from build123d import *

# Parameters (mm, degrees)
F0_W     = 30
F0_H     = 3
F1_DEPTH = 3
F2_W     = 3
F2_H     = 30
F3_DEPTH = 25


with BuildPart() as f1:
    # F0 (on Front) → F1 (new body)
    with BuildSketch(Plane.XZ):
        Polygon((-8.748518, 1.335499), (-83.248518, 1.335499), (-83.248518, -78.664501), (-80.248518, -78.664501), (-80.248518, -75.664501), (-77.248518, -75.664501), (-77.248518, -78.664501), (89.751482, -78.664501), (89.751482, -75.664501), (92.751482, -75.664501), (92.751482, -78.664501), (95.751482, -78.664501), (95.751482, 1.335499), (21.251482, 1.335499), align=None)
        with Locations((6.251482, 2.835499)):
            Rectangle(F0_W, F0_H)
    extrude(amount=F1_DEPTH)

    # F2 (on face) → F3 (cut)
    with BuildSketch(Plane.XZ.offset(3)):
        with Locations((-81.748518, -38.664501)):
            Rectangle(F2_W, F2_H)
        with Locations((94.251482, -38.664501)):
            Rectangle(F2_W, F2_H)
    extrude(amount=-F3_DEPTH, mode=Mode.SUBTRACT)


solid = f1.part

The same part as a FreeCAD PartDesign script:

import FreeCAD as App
import Part
import Sketcher
from FreeCAD import Vector

doc = App.newDocument("Part")
body = doc.addObject("PartDesign::Body", "Body")

# Sketch on XZ plane
sketch1 = body.newObject("Sketcher::SketchObject", "Sketch")
sketch1.AttachmentSupport = (doc.getObject("XZ_Plane"), [""])
sketch1.MapMode = "FlatFace"
sketch1.addGeometry([
    Part.LineSegment(Vector(-83.248518, 1.335499, 0), Vector(-83.248518, -78.664501, 0)),  # 0
    Part.LineSegment(Vector(-83.248518, -78.664501, 0), Vector(-80.248518, -78.664501, 0)),  # 1
    Part.LineSegment(Vector(-80.248518, -78.664501, 0), Vector(-80.248518, -75.664501, 0)),  # 2
    Part.LineSegment(Vector(-80.248518, -75.664501, 0), Vector(-77.248518, -75.664501, 0)),  # 3
    Part.LineSegment(Vector(-77.248518, -75.664501, 0), Vector(-77.248518, -78.664501, 0)),  # 4
    Part.LineSegment(Vector(-77.248518, -78.664501, 0), Vector(89.751482, -78.664501, 0)),  # 5
    Part.LineSegment(Vector(89.751482, -78.664501, 0), Vector(89.751482, -75.664501, 0)),  # 6
    Part.LineSegment(Vector(89.751482, -75.664501, 0), Vector(92.751482, -75.664501, 0)),  # 7
    Part.LineSegment(Vector(92.751482, -75.664501, 0), Vector(92.751482, -78.664501, 0)),  # 8
    Part.LineSegment(Vector(92.751482, -78.664501, 0), Vector(95.751482, -78.664501, 0)),  # 9
    Part.LineSegment(Vector(95.751482, -78.664501, 0), Vector(95.751482, 1.335499, 0)),  # 10
    Part.LineSegment(Vector(95.751482, 1.335499, 0), Vector(21.251482, 1.335499, 0)),  # 11
    Part.LineSegment(Vector(21.251482, 1.335499, 0), Vector(21.251482, 4.335499, 0)),  # 12
    Part.LineSegment(Vector(21.251482, 4.335499, 0), Vector(-8.748518, 4.335499, 0)),  # 13
    Part.LineSegment(Vector(-8.748518, 4.335499, 0), Vector(-8.748518, 1.335499, 0)),  # 14
    Part.LineSegment(Vector(-8.748518, 1.335499, 0), Vector(-83.248518, 1.335499, 0)),  # 15
], False)
sketch1.addConstraint([
    Sketcher.Constraint("Coincident", 0, 2, 1, 1),
    Sketcher.Constraint("Coincident", 1, 2, 2, 1),
    Sketcher.Constraint("Coincident", 2, 2, 3, 1),
    Sketcher.Constraint("Coincident", 3, 2, 4, 1),
    Sketcher.Constraint("Coincident", 4, 2, 5, 1),
    Sketcher.Constraint("Coincident", 5, 2, 6, 1),
    Sketcher.Constraint("Coincident", 6, 2, 7, 1),
    Sketcher.Constraint("Coincident", 7, 2, 8, 1),
    Sketcher.Constraint("Coincident", 8, 2, 9, 1),
    Sketcher.Constraint("Coincident", 9, 2, 10, 1),
    Sketcher.Constraint("Coincident", 10, 2, 11, 1),
    Sketcher.Constraint("Coincident", 11, 2, 12, 1),
    Sketcher.Constraint("Coincident", 12, 2, 13, 1),
    Sketcher.Constraint("Coincident", 13, 2, 14, 1),
    Sketcher.Constraint("Coincident", 14, 2, 15, 1),
    Sketcher.Constraint("Coincident", 15, 2, 0, 1),
    Sketcher.Constraint("Vertical", 0),
    Sketcher.Constraint("Horizontal", 1),
    Sketcher.Constraint("Vertical", 2),
    Sketcher.Constraint("Horizontal", 3),
    Sketcher.Constraint("Vertical", 4),
    Sketcher.Constraint("Horizontal", 5),
    Sketcher.Constraint("Vertical", 6),
    Sketcher.Constraint("Horizontal", 7),
    Sketcher.Constraint("Vertical", 8),
    Sketcher.Constraint("Horizontal", 9),
    Sketcher.Constraint("Vertical", 10),
    Sketcher.Constraint("Horizontal", 11),
    Sketcher.Constraint("Vertical", 12),
    Sketcher.Constraint("Horizontal", 13),
    Sketcher.Constraint("Vertical", 14),
    Sketcher.Constraint("Horizontal", 15),
    Sketcher.Constraint("Horizontal", 1, 2, 4, 2),
    Sketcher.Constraint("Horizontal", 3, 2, 6, 2),
    Sketcher.Constraint("Horizontal", 5, 2, 8, 2),
    Sketcher.Constraint("Horizontal", 11, 2, 14, 2),
    Sketcher.Constraint("Equal", 1, 3),
    Sketcher.Constraint("Equal", 3, 7),
    Sketcher.Constraint("Equal", 7, 9),
    Sketcher.Constraint("Equal", 11, 15),
    Sketcher.Constraint("Equal", 9, 2),
    Sketcher.Constraint("Equal", 8, 12),
    Sketcher.Constraint("DistanceX", 1, 1, 1, 2, 3.0),
    Sketcher.Constraint("DistanceX", 5, 1, 5, 2, 167.0),
    Sketcher.Constraint("DistanceX", 13, 2, 13, 1, 30.0),
    Sketcher.Constraint("DistanceY", 0, 2, 0, 1, 80.0),
    Sketcher.Constraint("DistanceY", 0, 2, -1, 1, 78.664501),
    Sketcher.Constraint("DistanceX", 0, 2, -1, 1, 83.248518),
])
pad1 = body.newObject("PartDesign::Pad", "Pad")
pad1.Profile = sketch1
pad1.Length = 3

# Sketch on XZ plane
sketch2 = body.newObject("Sketcher::SketchObject", "Sketch001")
sketch2.AttachmentSupport = (doc.getObject("XZ_Plane"), [""])
sketch2.MapMode = "FlatFace"
sketch2.AttachmentOffset = App.Placement(Vector(0, 0, 3), App.Rotation())
sketch2.addGeometry([
    Part.LineSegment(Vector(-83.248518, -23.664501, 0), Vector(-83.248518, -53.664501, 0)),  # 0
    Part.LineSegment(Vector(-83.248518, -53.664501, 0), Vector(-80.248518, -53.664501, 0)),  # 1
    Part.LineSegment(Vector(-80.248518, -53.664501, 0), Vector(-80.248518, -23.664501, 0)),  # 2
    Part.LineSegment(Vector(-80.248518, -23.664501, 0), Vector(-83.248518, -23.664501, 0)),  # 3
    Part.LineSegment(Vector(92.751482, -23.664501, 0), Vector(92.751482, -53.664501, 0)),  # 4
    Part.LineSegment(Vector(92.751482, -53.664501, 0), Vector(95.751482, -53.664501, 0)),  # 5
    Part.LineSegment(Vector(95.751482, -53.664501, 0), Vector(95.751482, -23.664501, 0)),  # 6
    Part.LineSegment(Vector(95.751482, -23.664501, 0), Vector(92.751482, -23.664501, 0)),  # 7
], False)
sketch2.addConstraint([
    Sketcher.Constraint("Coincident", 0, 2, 1, 1),
    Sketcher.Constraint("Coincident", 1, 2, 2, 1),
    Sketcher.Constraint("Coincident", 2, 2, 3, 1),
    Sketcher.Constraint("Coincident", 3, 2, 0, 1),
    Sketcher.Constraint("Coincident", 4, 2, 5, 1),
    Sketcher.Constraint("Coincident", 5, 2, 6, 1),
    Sketcher.Constraint("Coincident", 6, 2, 7, 1),
    Sketcher.Constraint("Coincident", 7, 2, 4, 1),
    Sketcher.Constraint("Vertical", 0),
    Sketcher.Constraint("Horizontal", 1),
    Sketcher.Constraint("Vertical", 2),
    Sketcher.Constraint("Horizontal", 3),
    Sketcher.Constraint("Vertical", 4),
    Sketcher.Constraint("Horizontal", 5),
    Sketcher.Constraint("Vertical", 6),
    Sketcher.Constraint("Horizontal", 7),
    Sketcher.Constraint("Horizontal", 1, 2, 4, 2),
    Sketcher.Constraint("Horizontal", 3, 2, 6, 2),
    Sketcher.Constraint("Equal", 3, 5),
    Sketcher.Constraint("DistanceX", 1, 1, 1, 2, 3.0),
    Sketcher.Constraint("DistanceY", 0, 2, 0, 1, 30.0),
    Sketcher.Constraint("DistanceX", 1, 2, 4, 2, 173.0),
    Sketcher.Constraint("DistanceY", 0, 2, -1, 1, 53.664501),
    Sketcher.Constraint("DistanceX", 0, 2, -1, 1, 83.248518),
])
pocket1 = body.newObject("PartDesign::Pocket", "Pocket")
pocket1.Profile = sketch2
pocket1.Length = 25

doc.recompute()
